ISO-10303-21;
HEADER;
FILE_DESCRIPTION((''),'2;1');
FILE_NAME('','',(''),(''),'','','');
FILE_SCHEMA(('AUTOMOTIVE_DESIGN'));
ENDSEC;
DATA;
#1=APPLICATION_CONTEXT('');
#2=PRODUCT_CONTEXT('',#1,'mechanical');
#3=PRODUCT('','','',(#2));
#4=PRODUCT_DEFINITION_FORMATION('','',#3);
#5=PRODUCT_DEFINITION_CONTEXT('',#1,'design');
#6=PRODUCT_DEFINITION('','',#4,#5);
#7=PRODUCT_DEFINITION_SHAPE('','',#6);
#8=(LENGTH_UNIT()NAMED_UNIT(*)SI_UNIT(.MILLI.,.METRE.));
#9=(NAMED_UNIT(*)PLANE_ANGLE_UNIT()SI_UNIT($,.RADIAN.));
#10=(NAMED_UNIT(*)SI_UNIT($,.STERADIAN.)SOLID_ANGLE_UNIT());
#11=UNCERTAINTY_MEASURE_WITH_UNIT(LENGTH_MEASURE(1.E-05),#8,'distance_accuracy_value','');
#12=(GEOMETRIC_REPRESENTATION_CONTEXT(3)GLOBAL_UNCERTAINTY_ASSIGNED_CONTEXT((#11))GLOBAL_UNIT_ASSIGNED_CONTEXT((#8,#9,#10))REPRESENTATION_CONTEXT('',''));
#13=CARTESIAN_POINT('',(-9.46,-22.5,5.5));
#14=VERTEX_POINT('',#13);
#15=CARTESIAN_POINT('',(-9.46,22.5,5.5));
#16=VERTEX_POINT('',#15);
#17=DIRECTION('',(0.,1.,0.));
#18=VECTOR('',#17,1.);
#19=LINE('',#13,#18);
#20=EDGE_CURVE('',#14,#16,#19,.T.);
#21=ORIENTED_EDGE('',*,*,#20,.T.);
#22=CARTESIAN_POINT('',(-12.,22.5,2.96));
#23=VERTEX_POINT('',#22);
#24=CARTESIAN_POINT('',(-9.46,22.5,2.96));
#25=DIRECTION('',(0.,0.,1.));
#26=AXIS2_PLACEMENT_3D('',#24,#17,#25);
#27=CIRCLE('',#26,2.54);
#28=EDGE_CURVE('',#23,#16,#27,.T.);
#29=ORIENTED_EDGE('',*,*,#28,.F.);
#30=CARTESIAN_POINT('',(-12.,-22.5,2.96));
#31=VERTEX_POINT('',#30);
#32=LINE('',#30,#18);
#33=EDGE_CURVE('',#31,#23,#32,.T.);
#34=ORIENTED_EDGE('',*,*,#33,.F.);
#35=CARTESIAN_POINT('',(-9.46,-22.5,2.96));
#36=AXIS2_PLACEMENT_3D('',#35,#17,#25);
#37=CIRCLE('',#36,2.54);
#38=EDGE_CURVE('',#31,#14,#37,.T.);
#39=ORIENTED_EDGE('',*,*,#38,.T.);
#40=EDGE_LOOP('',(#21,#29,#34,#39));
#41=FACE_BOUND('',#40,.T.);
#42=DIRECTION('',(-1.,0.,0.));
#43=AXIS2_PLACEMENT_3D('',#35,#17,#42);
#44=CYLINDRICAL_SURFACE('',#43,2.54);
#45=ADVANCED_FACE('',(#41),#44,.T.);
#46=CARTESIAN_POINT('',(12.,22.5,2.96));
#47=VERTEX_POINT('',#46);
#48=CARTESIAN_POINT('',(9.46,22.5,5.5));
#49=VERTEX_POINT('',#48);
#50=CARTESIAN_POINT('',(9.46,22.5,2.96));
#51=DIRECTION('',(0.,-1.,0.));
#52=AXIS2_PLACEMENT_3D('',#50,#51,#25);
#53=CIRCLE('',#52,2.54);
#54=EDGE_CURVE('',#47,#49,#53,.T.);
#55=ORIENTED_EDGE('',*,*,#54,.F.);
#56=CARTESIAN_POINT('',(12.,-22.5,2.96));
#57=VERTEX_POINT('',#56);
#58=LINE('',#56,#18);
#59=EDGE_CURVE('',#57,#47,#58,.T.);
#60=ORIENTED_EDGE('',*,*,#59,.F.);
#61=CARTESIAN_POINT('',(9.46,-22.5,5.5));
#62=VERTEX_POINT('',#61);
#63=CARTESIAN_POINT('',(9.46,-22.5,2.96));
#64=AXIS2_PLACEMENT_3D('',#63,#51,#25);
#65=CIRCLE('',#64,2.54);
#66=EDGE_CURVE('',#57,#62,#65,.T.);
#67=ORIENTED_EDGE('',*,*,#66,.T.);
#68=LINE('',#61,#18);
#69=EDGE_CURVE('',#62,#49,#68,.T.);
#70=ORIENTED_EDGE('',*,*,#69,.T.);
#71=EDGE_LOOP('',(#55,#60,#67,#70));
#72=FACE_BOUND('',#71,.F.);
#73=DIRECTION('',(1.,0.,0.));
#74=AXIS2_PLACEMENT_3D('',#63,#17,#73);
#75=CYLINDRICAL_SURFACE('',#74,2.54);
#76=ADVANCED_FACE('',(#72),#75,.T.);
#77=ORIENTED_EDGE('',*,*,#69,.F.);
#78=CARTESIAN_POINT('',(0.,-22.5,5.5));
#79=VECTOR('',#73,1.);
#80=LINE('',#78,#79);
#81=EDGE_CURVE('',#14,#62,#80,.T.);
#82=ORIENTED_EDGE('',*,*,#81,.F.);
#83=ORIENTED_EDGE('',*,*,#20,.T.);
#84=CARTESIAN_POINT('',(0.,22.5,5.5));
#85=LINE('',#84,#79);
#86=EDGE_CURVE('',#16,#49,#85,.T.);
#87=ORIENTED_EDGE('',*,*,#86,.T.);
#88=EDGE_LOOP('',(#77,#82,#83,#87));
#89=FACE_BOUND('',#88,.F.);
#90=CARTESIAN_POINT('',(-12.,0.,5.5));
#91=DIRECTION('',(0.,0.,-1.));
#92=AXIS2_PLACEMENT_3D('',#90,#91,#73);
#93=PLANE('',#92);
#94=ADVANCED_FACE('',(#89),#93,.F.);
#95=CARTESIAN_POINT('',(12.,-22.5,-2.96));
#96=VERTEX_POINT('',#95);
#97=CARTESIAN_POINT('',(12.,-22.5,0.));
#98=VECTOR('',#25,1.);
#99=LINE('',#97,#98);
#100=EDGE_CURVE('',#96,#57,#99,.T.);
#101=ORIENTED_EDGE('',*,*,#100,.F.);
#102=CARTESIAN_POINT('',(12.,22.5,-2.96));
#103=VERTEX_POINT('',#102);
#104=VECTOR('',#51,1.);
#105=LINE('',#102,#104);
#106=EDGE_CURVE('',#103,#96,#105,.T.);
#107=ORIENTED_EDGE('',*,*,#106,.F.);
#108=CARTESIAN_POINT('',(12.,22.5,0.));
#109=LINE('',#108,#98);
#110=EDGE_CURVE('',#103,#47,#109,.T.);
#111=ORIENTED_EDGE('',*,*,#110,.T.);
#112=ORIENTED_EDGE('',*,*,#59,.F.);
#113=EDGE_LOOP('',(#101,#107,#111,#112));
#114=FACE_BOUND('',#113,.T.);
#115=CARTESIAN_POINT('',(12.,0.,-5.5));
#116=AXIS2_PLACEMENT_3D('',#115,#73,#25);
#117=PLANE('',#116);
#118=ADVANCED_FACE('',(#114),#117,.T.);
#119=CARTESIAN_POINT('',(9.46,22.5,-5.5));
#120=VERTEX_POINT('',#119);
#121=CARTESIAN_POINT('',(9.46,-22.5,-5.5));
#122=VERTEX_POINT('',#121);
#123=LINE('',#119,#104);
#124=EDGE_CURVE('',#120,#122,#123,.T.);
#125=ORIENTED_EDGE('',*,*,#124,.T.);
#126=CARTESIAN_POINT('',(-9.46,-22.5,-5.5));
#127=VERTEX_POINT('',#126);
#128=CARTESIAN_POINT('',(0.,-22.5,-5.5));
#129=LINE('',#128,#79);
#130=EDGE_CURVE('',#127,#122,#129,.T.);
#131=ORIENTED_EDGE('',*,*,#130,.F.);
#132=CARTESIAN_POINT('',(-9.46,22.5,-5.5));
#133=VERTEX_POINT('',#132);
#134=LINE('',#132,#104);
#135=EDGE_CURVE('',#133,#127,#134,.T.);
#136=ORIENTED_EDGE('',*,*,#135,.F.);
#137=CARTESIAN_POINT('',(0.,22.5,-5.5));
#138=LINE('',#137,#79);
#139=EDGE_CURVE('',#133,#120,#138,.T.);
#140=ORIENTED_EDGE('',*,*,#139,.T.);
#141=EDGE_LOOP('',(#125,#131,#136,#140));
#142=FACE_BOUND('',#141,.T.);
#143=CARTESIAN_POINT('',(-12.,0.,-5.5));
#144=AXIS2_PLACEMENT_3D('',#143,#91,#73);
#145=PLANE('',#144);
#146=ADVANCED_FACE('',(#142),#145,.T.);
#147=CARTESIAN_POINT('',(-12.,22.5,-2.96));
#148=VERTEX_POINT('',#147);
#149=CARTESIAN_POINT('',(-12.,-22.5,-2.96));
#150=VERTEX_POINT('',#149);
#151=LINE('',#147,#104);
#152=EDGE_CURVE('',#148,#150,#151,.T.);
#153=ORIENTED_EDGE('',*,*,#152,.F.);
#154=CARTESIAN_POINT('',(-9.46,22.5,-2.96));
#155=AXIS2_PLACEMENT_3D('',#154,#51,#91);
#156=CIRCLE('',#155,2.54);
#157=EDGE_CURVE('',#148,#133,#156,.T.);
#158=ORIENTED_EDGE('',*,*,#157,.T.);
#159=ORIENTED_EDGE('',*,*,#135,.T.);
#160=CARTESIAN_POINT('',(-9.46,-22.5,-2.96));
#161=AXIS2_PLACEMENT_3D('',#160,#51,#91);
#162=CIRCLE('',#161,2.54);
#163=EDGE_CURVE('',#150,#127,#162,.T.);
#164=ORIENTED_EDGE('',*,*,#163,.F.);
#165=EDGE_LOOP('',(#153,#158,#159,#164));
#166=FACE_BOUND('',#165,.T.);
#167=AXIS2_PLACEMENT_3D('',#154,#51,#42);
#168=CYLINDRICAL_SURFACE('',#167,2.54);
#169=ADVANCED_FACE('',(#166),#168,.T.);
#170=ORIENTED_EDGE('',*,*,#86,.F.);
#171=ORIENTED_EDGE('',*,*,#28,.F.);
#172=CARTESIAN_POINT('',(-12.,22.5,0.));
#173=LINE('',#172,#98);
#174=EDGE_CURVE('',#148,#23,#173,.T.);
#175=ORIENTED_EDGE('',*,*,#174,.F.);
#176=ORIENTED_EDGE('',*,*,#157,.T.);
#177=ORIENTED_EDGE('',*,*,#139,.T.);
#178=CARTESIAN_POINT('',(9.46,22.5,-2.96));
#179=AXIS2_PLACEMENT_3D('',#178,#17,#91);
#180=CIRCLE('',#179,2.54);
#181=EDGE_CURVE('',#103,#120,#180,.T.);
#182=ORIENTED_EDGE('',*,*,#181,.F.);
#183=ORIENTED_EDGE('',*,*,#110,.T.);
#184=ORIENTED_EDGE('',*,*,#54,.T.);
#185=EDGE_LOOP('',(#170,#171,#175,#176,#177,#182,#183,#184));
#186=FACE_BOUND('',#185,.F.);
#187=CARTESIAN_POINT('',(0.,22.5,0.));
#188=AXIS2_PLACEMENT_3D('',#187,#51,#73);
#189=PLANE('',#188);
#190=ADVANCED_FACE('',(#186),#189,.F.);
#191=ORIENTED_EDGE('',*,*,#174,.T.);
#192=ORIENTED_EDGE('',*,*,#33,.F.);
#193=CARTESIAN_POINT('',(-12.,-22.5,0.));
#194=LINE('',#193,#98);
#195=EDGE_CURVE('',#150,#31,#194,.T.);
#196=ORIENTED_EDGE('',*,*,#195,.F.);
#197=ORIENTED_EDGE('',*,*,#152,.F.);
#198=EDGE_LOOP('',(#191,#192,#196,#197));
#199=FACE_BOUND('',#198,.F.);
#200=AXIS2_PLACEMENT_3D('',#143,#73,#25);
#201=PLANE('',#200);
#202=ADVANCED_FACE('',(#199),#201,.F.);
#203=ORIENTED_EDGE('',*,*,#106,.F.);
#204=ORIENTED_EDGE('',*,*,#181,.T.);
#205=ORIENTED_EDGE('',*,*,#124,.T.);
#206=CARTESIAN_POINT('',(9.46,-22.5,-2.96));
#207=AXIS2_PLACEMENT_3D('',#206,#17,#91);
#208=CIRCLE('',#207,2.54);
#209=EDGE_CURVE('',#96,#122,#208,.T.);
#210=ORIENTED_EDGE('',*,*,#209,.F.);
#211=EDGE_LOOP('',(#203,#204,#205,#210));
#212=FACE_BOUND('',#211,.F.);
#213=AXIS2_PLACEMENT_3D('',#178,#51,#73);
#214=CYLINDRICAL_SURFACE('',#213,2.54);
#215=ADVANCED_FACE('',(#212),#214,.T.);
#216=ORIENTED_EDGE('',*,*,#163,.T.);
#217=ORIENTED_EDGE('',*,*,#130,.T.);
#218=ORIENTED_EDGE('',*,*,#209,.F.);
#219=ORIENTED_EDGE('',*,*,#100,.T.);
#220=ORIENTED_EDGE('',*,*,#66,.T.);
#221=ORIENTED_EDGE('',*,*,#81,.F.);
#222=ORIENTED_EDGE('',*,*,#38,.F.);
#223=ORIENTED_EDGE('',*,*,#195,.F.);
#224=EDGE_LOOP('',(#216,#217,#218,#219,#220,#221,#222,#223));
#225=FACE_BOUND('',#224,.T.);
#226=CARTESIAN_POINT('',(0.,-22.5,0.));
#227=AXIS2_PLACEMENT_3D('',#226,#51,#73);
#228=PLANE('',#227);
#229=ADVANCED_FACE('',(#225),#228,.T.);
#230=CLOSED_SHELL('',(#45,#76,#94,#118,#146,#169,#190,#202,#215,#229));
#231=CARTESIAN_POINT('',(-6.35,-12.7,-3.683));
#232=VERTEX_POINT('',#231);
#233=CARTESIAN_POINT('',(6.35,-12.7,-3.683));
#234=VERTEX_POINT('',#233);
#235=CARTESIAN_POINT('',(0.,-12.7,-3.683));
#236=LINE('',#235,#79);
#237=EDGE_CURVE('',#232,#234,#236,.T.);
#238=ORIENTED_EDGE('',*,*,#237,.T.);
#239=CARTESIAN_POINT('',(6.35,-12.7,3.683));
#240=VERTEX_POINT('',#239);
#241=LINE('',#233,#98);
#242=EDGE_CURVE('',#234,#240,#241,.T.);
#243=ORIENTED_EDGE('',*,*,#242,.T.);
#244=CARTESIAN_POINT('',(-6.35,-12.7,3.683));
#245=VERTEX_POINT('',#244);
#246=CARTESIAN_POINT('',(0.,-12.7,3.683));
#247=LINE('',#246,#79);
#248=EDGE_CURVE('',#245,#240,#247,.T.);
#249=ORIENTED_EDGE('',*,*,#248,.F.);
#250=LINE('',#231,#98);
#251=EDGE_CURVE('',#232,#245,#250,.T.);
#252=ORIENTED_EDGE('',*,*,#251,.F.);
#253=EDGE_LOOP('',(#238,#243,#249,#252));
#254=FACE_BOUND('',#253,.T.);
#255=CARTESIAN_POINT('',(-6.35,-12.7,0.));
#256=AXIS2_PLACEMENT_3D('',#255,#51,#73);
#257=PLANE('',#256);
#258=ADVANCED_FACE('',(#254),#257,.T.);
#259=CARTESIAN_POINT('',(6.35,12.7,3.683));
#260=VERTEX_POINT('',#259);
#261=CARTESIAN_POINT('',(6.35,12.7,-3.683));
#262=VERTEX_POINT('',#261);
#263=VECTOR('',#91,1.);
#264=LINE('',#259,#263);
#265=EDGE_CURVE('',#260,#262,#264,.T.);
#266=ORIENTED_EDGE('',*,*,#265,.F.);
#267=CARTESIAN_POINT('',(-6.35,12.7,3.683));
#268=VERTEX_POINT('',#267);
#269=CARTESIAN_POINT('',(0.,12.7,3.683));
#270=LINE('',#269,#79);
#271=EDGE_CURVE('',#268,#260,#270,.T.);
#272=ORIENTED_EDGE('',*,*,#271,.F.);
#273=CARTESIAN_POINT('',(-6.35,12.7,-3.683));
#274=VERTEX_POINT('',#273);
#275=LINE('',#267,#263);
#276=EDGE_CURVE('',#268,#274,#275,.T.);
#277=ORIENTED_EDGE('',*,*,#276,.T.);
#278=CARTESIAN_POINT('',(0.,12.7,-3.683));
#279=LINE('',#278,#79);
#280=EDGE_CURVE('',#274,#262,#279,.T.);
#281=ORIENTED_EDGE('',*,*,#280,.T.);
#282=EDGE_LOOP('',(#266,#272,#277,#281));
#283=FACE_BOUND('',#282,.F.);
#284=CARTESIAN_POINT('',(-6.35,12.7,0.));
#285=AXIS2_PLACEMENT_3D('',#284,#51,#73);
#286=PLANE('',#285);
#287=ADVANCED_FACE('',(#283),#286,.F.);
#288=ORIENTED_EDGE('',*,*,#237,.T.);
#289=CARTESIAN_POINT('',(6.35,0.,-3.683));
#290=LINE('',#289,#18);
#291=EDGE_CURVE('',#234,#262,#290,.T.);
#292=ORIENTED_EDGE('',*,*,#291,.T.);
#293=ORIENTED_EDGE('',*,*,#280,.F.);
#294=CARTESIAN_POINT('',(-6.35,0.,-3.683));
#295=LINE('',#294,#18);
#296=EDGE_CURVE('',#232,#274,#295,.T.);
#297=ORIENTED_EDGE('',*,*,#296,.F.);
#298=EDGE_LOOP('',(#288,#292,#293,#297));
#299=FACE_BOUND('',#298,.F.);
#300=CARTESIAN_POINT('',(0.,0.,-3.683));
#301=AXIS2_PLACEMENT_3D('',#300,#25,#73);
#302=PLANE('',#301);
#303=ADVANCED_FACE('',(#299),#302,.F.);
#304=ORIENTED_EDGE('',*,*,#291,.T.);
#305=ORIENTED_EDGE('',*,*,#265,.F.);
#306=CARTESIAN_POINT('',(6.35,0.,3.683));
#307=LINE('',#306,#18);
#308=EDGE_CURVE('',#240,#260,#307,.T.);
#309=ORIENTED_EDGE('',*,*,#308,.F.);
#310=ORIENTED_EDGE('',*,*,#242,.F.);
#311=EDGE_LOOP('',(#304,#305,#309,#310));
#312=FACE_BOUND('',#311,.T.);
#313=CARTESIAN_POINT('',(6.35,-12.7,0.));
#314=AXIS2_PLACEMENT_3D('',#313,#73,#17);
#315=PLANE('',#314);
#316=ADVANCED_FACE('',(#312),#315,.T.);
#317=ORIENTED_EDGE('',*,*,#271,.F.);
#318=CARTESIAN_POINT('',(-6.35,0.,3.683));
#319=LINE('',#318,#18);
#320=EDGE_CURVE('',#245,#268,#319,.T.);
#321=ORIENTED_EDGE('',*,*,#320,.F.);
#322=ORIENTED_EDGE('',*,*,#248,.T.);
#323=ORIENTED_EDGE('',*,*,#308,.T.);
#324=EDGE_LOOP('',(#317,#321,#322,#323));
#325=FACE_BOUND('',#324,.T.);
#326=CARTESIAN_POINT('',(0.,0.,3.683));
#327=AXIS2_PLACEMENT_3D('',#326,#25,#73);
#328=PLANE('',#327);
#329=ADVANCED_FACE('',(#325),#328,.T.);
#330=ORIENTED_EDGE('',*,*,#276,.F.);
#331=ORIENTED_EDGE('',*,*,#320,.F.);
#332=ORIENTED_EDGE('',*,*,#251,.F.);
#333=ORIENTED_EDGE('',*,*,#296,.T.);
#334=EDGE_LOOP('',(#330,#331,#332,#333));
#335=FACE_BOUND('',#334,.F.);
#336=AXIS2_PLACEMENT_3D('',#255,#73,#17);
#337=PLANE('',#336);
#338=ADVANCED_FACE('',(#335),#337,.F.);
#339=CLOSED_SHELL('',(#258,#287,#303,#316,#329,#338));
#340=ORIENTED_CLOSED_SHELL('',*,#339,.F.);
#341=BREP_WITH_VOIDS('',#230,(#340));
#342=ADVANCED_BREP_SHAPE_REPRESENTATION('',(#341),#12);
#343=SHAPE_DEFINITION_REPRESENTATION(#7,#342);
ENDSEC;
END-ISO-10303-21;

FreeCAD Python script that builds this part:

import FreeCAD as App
import Part
import Sketcher
Q = App.Units.Quantity


def edges_at(feature, points):
    """Names of the edges that pass closest to the given points."""
    edges = feature.Shape.Edges
    near = lambda p: min(range(len(edges)), key=lambda i: edges[i].distToShape(Part.Vertex(*p))[0])
    return sorted({f"Edge{near(p) + 1}" for p in points})

doc = App.newDocument("Part")
params = doc.addObject("Spreadsheet::Sheet", "Params")
for row, (alias, value) in enumerate([
    ("pad1_length", "45 mm"),
    ("fillet_radius", "0.1 in"),
    ("sketch2_height", "1 in"),
    ("sketch2_width", "0.5 in"),
    ("pocket1_length", "0.29 in"),
], start=1):
    params.set(f"A{row}", alias)
    params.set(f"B{row}", "=" + value)
    params.setAlias(f"B{row}", alias)

body = doc.addObject("PartDesign::Body", "Body")

sketch1 = body.newObject("Sketcher::SketchObject", "Sketch")
sketch1.AttachmentSupport = (doc.getObject("XZ_Plane"), [""])
sketch1.MapMode = "FlatFace"
sketch1.addGeometry([
    Part.LineSegment(App.Vector(-12, 6, 0), App.Vector(-12, -6, 0)),
    Part.LineSegment(App.Vector(-12, -6, 0), App.Vector(12, -6, 0)),
    Part.LineSegment(App.Vector(12, -6, 0), App.Vector(12, 6, 0)),
    Part.LineSegment(App.Vector(12, 6, 0), App.Vector(-12, 6, 0)),
], False)
sketch1.addConstraint([
    Sketcher.Constraint("Coincident", 0, 2, 1, 1),
    Sketcher.Constraint("Coincident", 1, 2, 2, 1),
    Sketcher.Constraint("Coincident", 2, 2, 3, 1),
    Sketcher.Constraint("Coincident", 3, 2, 0, 1),
    Sketcher.Constraint("Vertical", 0),
    Sketcher.Constraint("Horizontal", 1),
    Sketcher.Constraint("Vertical", 2),
    Sketcher.Constraint("Horizontal", 3),
    Sketcher.Constraint("Symmetric", 0, 2, 2, 2, -1, 1),
    Sketcher.Constraint("DistanceX", 1, 1, 1, 2, Q("24 mm")),
    Sketcher.Constraint("DistanceY", 0, 2, 0, 1, Q("11 mm")),
])
pad1 = body.newObject("PartDesign::Pad", "Pad")
pad1.Profile = sketch1
pad1.setExpression("Length", "Params.pad1_length")
pad1.Midplane = True
doc.recompute()

fillet = body.newObject("PartDesign::Fillet", "Fillet")
fillet.Base = (pad1, edges_at(pad1, [
    (-12, 0, 5.5),
    (-12, 0, -5.5),
    (12, 0, -5.5),
    (12, 0, 5.5),
]))
fillet.setExpression("Radius", "Params.fillet_radius")

sketch2 = body.newObject("Sketcher::SketchObject", "Sketch001")
sketch2.AttachmentSupport = (doc.getObject("XY_Plane"), [""])
sketch2.MapMode = "FlatFace"
sketch2.addGeometry([
    Part.LineSegment(App.Vector(-6, 13, 0), App.Vector(-6, -13, 0)),
    Part.LineSegment(App.Vector(-6, -13, 0), App.Vector(6, -13, 0)),
    Part.LineSegment(App.Vector(6, -13, 0), App.Vector(6, 13, 0)),
    Part.LineSegment(App.Vector(6, 13, 0), App.Vector(-6, 13, 0)),
], False)
sketch2.addConstraint([
    Sketcher.Constraint("Coincident", 0, 2, 1, 1),
    Sketcher.Constraint("Coincident", 1, 2, 2, 1),
    Sketcher.Constraint("Coincident", 2, 2, 3, 1),
    Sketcher.Constraint("Coincident", 3, 2, 0, 1),
    Sketcher.Constraint("Vertical", 0),
    Sketcher.Constraint("Horizontal", 1),
    Sketcher.Constraint("Vertical", 2),
    Sketcher.Constraint("Horizontal", 3),
    Sketcher.Constraint("Symmetric", 0, 2, 2, 2, -1, 1),
    Sketcher.Constraint("DistanceY", 0, 2, 0, 1, Q("1 in")),
    Sketcher.Constraint("DistanceX", 1, 1, 1, 2, Q("0.5 in")),
])
sketch2.setExpression("Constraints[9]", "Params.sketch2_height")
sketch2.setExpression("Constraints[10]", "Params.sketch2_width")
pocket1 = body.newObject("PartDesign::Pocket", "Pocket")
pocket1.Profile = sketch2
pocket1.setExpression("Length", "Params.pocket1_length")
pocket1.Midplane = True

doc.recompute()
